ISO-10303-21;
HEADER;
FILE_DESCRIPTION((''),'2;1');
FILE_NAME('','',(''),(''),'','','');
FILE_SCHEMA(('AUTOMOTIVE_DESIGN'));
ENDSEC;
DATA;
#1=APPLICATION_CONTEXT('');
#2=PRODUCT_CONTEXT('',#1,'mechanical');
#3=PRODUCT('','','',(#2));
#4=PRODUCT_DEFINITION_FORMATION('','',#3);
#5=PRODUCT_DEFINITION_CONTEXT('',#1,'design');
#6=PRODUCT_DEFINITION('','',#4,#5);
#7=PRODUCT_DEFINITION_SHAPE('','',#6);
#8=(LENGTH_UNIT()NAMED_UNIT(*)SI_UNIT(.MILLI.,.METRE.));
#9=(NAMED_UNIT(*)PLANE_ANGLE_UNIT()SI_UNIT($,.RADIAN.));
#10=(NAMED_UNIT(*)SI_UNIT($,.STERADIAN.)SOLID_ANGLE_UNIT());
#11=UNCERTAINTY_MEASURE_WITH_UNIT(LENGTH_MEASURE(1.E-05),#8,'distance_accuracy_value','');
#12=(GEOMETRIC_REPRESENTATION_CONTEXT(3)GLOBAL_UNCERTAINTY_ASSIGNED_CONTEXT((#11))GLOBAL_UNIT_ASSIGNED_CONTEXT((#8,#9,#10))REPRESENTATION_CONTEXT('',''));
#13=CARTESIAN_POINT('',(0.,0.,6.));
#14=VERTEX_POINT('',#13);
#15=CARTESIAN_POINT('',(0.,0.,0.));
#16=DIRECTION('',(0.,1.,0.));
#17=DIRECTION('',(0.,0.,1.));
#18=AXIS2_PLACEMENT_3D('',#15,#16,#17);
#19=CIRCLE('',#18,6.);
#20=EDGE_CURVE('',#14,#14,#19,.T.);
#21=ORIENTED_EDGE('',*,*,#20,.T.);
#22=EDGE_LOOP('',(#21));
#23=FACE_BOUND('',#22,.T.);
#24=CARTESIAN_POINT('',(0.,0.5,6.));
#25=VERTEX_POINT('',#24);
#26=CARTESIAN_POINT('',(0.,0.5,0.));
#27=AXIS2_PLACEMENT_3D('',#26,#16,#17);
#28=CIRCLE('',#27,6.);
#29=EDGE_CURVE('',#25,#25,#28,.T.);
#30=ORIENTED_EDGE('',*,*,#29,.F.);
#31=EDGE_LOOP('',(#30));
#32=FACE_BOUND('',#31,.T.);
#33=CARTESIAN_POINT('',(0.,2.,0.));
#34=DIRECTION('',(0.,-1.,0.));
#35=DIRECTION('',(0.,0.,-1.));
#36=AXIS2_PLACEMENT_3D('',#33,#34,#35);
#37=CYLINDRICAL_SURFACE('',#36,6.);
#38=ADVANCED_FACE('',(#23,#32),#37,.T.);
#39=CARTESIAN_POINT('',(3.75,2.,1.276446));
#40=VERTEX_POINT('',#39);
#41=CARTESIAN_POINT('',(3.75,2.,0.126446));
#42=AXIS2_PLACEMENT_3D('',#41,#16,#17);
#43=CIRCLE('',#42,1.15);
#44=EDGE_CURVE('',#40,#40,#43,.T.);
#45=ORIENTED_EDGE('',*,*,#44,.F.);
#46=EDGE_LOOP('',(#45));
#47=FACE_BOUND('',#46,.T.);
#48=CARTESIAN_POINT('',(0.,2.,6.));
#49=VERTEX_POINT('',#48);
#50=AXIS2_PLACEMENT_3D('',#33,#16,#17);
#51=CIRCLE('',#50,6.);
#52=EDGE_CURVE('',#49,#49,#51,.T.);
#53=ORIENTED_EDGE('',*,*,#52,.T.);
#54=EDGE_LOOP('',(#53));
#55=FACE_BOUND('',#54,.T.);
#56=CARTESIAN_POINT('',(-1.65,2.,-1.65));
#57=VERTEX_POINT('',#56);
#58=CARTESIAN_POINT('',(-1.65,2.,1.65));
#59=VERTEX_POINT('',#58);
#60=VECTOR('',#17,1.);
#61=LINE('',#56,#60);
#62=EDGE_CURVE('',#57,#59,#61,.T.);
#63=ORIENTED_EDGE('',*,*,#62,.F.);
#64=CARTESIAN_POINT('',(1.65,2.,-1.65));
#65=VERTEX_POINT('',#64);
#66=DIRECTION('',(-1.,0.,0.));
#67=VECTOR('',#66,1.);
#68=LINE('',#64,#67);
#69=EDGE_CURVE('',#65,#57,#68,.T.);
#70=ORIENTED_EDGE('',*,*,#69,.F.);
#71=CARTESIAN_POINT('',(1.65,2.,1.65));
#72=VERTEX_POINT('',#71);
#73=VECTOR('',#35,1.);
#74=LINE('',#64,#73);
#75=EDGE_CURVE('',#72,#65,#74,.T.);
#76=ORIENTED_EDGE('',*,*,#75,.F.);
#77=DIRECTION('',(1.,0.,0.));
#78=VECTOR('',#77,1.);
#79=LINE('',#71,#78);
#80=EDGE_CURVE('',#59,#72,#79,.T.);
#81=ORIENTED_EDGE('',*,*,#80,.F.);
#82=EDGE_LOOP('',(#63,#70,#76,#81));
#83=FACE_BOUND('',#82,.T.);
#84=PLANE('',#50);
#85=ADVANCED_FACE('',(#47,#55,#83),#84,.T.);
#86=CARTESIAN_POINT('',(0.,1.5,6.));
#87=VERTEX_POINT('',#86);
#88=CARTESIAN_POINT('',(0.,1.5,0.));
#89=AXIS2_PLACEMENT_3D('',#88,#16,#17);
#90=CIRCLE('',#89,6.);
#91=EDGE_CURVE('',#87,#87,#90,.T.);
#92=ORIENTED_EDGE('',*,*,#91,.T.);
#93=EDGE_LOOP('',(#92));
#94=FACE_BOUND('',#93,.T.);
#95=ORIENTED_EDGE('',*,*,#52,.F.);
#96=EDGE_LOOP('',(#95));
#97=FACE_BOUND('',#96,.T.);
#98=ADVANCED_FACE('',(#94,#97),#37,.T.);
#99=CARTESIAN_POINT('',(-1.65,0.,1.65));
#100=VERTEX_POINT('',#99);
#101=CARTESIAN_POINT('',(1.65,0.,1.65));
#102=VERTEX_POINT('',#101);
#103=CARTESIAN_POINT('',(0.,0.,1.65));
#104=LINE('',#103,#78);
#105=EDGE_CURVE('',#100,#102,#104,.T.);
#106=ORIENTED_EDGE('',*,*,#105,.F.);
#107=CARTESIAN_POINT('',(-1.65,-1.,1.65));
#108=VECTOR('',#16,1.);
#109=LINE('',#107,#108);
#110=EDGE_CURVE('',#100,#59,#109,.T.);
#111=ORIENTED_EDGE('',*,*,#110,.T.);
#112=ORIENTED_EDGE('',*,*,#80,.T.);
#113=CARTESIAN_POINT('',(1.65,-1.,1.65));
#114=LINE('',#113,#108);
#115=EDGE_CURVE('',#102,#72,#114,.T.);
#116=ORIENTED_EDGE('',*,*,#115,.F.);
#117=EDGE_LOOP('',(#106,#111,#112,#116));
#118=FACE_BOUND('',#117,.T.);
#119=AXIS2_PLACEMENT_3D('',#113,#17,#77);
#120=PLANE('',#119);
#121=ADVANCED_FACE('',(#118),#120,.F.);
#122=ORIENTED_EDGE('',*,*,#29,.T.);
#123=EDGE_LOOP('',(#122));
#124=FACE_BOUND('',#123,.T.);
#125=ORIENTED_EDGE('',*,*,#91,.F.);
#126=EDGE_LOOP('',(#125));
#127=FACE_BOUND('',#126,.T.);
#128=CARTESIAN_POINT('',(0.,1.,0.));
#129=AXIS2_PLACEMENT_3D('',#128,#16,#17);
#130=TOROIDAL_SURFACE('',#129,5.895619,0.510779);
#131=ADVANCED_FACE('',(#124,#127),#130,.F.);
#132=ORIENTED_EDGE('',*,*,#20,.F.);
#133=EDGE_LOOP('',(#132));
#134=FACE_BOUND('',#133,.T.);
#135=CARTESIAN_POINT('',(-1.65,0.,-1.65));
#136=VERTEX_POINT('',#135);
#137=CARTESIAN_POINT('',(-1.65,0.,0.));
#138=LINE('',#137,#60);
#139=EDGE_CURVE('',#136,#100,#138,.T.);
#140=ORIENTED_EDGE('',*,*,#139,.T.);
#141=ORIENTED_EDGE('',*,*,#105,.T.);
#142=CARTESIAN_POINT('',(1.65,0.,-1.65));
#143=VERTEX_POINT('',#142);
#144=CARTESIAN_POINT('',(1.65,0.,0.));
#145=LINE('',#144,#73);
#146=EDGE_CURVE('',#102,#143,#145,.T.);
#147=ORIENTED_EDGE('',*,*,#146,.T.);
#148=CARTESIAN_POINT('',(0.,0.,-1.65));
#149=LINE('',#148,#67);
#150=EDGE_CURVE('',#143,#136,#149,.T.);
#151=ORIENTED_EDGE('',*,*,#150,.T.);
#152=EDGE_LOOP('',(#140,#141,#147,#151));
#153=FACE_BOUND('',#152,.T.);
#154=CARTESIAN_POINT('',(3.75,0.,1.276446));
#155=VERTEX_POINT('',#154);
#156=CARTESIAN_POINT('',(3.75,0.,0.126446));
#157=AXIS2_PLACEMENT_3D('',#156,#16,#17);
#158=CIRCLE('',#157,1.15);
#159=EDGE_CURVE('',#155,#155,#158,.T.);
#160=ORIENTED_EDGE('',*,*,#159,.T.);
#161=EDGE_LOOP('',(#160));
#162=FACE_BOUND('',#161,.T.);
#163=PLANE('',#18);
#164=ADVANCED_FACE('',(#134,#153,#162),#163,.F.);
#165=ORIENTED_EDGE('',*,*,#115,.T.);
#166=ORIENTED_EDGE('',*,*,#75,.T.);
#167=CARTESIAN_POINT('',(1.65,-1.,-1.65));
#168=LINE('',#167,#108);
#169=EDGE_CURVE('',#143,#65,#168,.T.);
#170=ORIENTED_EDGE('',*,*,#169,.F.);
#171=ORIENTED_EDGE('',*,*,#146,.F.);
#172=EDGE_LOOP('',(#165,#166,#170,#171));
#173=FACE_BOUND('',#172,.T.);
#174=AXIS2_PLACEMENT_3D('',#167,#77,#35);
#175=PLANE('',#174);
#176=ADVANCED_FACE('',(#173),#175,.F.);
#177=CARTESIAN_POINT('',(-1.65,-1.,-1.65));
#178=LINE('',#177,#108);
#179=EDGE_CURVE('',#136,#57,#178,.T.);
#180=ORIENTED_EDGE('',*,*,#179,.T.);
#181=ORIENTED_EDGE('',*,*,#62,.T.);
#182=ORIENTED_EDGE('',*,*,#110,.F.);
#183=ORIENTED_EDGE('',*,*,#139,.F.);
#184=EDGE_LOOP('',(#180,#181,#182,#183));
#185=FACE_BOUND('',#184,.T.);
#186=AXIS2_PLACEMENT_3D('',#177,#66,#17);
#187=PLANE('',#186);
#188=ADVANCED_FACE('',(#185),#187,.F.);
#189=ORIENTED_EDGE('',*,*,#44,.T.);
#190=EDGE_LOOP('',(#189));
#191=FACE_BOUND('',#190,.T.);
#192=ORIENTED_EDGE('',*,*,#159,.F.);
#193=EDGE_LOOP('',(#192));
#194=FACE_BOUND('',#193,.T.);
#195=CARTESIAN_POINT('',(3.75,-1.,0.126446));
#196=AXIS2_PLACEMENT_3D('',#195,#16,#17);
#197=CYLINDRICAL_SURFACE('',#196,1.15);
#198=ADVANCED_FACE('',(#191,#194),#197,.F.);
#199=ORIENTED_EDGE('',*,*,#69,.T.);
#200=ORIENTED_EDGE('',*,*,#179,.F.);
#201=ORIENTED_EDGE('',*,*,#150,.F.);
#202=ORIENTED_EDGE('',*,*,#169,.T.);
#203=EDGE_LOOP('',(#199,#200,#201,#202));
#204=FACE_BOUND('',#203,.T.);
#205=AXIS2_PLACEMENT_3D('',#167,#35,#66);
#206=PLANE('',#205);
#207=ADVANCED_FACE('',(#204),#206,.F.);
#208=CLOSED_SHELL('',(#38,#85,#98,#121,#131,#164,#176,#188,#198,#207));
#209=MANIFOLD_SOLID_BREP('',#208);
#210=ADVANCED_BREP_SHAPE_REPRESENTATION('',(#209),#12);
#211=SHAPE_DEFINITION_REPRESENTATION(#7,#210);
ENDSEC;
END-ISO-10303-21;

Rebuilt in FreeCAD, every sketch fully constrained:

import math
import FreeCAD as App
import Part
import Sketcher

V = App.Vector
Q = App.Units.Quantity

doc = App.newDocument("Part")
body = doc.addObject("PartDesign::Body", "Body")

sketch1 = body.newObject("Sketcher::SketchObject", "Sketch")
sketch1.AttachmentSupport = (doc.getObject("XZ_Plane"), [""])
sketch1.MapMode = "FlatFace"
sketch1.addGeometry(Part.Circle(V(0, 0, 0), V(0, 0, 1), 6), False)
sketch1.addConstraint([
    Sketcher.Constraint("Coincident", 0, 3, -1, 1),
    Sketcher.Constraint("Diameter", 0, Q("12 mm")),
])
pad1 = body.newObject("PartDesign::Pad", "Pad")
pad1.Profile = sketch1
pad1.Length = 2
pad1.Reversed = True

sketch2 = body.newObject("Sketcher::SketchObject", "Sketch001")
sketch2.AttachmentSupport = (doc.getObject("XZ_Plane"), [""])
sketch2.MapMode = "FlatFace"
sketch2.AttachmentOffset = App.Placement(V(0, 0, -2), App.Rotation())
sketch2.addGeometry([
    Part.LineSegment(V(-1.65, -1.65, 0), V(-1.65, 1.65, 0)),
    Part.LineSegment(V(-1.65, 1.65, 0), V(1.65, 1.65, 0)),
    Part.LineSegment(V(1.65, 1.65, 0), V(1.65, -1.65, 0)),
    Part.LineSegment(V(1.65, -1.65, 0), V(-1.65, -1.65, 0)),
], False)
sketch2.addConstraint([
    Sketcher.Constraint("Coincident", 0, 2, 1, 1),
    Sketcher.Constraint("Coincident", 1, 2, 2, 1),
    Sketcher.Constraint("Coincident", 2, 2, 3, 1),
    Sketcher.Constraint("Coincident", 3, 2, 0, 1),
    Sketcher.Constraint("Vertical", 0),
    Sketcher.Constraint("Horizontal", 1),
    Sketcher.Constraint("Vertical", 2),
    Sketcher.Constraint("Horizontal", 3),
    Sketcher.Constraint("Symmetric", 0, 2, 2, 2, -1, 1),
    Sketcher.Constraint("Equal", 3, 0),
    Sketcher.Constraint("DistanceX", 1, 1, 1, 2, Q("3.3 mm")),
])
pocket1 = body.newObject("PartDesign::Pocket", "Pocket")
pocket1.Profile = sketch2
pocket1.Length = 3
pocket1.Reversed = True

sketch3 = body.newObject("Sketcher::SketchObject", "Sketch002")
sketch3.AttachmentSupport = (doc.getObject("XZ_Plane"), [""])
sketch3.MapMode = "FlatFace"
sketch3.AttachmentOffset = App.Placement(V(0, 0, -2), App.Rotation())
sketch3.addGeometry(Part.Circle(V(3.75, 0.126446, 0), V(0, 0, 1), 1.15), False)
sketch3.addConstraint([
    Sketcher.Constraint("Diameter", 0, Q("2.3 mm")),
    Sketcher.Constraint("DistanceX", -1, 1, 0, 3, Q("3.75 mm")),
    Sketcher.Constraint("DistanceY", -1, 1, 0, 3, Q("0.126446 mm")),
])
pocket2 = body.newObject("PartDesign::Pocket", "Pocket001")
pocket2.Profile = sketch3
pocket2.Length = 3
pocket2.Reversed = True

sketch4 = body.newObject("Sketcher::SketchObject", "Sketch003")
sketch4.AttachmentSupport = (doc.getObject("XY_Plane"), [""])
sketch4.MapMode = "FlatFace"
sketch4.addGeometry([
    Part.LineSegment(V(-6, 1.5, 0), V(-6, 0.5, 0)),
    Part.ArcOfCircle(Part.Circle(V(-5.895619, 1, 0), V(0, 0, 1), 0.510779), math.radians(-101.791807), math.radians(101.791807)),
], False)
sketch4.addConstraint([
    Sketcher.Constraint("Coincident", 0, 1, 1, 2),
    Sketcher.Constraint("Coincident", 1, 1, 0, 2),
    Sketcher.Constraint("Vertical", 0),
    Sketcher.Constraint("DistanceY", 0, 2, 0, 1, Q("1 mm")),
    Sketcher.Constraint("DistanceY", -1, 1, 1, 3, Q("1 mm")),
    Sketcher.Constraint("DistanceX", 0, 1, -1, 1, Q("6 mm")),
    Sketcher.Constraint("Radius", 1, Q("0.510779 mm")),
])
groove = body.newObject("PartDesign::Groove", "Groove")
groove.Profile = sketch4
groove.ReferenceAxis = (sketch4, ["V_Axis"])
groove.Angle = 360

doc.recompute()
